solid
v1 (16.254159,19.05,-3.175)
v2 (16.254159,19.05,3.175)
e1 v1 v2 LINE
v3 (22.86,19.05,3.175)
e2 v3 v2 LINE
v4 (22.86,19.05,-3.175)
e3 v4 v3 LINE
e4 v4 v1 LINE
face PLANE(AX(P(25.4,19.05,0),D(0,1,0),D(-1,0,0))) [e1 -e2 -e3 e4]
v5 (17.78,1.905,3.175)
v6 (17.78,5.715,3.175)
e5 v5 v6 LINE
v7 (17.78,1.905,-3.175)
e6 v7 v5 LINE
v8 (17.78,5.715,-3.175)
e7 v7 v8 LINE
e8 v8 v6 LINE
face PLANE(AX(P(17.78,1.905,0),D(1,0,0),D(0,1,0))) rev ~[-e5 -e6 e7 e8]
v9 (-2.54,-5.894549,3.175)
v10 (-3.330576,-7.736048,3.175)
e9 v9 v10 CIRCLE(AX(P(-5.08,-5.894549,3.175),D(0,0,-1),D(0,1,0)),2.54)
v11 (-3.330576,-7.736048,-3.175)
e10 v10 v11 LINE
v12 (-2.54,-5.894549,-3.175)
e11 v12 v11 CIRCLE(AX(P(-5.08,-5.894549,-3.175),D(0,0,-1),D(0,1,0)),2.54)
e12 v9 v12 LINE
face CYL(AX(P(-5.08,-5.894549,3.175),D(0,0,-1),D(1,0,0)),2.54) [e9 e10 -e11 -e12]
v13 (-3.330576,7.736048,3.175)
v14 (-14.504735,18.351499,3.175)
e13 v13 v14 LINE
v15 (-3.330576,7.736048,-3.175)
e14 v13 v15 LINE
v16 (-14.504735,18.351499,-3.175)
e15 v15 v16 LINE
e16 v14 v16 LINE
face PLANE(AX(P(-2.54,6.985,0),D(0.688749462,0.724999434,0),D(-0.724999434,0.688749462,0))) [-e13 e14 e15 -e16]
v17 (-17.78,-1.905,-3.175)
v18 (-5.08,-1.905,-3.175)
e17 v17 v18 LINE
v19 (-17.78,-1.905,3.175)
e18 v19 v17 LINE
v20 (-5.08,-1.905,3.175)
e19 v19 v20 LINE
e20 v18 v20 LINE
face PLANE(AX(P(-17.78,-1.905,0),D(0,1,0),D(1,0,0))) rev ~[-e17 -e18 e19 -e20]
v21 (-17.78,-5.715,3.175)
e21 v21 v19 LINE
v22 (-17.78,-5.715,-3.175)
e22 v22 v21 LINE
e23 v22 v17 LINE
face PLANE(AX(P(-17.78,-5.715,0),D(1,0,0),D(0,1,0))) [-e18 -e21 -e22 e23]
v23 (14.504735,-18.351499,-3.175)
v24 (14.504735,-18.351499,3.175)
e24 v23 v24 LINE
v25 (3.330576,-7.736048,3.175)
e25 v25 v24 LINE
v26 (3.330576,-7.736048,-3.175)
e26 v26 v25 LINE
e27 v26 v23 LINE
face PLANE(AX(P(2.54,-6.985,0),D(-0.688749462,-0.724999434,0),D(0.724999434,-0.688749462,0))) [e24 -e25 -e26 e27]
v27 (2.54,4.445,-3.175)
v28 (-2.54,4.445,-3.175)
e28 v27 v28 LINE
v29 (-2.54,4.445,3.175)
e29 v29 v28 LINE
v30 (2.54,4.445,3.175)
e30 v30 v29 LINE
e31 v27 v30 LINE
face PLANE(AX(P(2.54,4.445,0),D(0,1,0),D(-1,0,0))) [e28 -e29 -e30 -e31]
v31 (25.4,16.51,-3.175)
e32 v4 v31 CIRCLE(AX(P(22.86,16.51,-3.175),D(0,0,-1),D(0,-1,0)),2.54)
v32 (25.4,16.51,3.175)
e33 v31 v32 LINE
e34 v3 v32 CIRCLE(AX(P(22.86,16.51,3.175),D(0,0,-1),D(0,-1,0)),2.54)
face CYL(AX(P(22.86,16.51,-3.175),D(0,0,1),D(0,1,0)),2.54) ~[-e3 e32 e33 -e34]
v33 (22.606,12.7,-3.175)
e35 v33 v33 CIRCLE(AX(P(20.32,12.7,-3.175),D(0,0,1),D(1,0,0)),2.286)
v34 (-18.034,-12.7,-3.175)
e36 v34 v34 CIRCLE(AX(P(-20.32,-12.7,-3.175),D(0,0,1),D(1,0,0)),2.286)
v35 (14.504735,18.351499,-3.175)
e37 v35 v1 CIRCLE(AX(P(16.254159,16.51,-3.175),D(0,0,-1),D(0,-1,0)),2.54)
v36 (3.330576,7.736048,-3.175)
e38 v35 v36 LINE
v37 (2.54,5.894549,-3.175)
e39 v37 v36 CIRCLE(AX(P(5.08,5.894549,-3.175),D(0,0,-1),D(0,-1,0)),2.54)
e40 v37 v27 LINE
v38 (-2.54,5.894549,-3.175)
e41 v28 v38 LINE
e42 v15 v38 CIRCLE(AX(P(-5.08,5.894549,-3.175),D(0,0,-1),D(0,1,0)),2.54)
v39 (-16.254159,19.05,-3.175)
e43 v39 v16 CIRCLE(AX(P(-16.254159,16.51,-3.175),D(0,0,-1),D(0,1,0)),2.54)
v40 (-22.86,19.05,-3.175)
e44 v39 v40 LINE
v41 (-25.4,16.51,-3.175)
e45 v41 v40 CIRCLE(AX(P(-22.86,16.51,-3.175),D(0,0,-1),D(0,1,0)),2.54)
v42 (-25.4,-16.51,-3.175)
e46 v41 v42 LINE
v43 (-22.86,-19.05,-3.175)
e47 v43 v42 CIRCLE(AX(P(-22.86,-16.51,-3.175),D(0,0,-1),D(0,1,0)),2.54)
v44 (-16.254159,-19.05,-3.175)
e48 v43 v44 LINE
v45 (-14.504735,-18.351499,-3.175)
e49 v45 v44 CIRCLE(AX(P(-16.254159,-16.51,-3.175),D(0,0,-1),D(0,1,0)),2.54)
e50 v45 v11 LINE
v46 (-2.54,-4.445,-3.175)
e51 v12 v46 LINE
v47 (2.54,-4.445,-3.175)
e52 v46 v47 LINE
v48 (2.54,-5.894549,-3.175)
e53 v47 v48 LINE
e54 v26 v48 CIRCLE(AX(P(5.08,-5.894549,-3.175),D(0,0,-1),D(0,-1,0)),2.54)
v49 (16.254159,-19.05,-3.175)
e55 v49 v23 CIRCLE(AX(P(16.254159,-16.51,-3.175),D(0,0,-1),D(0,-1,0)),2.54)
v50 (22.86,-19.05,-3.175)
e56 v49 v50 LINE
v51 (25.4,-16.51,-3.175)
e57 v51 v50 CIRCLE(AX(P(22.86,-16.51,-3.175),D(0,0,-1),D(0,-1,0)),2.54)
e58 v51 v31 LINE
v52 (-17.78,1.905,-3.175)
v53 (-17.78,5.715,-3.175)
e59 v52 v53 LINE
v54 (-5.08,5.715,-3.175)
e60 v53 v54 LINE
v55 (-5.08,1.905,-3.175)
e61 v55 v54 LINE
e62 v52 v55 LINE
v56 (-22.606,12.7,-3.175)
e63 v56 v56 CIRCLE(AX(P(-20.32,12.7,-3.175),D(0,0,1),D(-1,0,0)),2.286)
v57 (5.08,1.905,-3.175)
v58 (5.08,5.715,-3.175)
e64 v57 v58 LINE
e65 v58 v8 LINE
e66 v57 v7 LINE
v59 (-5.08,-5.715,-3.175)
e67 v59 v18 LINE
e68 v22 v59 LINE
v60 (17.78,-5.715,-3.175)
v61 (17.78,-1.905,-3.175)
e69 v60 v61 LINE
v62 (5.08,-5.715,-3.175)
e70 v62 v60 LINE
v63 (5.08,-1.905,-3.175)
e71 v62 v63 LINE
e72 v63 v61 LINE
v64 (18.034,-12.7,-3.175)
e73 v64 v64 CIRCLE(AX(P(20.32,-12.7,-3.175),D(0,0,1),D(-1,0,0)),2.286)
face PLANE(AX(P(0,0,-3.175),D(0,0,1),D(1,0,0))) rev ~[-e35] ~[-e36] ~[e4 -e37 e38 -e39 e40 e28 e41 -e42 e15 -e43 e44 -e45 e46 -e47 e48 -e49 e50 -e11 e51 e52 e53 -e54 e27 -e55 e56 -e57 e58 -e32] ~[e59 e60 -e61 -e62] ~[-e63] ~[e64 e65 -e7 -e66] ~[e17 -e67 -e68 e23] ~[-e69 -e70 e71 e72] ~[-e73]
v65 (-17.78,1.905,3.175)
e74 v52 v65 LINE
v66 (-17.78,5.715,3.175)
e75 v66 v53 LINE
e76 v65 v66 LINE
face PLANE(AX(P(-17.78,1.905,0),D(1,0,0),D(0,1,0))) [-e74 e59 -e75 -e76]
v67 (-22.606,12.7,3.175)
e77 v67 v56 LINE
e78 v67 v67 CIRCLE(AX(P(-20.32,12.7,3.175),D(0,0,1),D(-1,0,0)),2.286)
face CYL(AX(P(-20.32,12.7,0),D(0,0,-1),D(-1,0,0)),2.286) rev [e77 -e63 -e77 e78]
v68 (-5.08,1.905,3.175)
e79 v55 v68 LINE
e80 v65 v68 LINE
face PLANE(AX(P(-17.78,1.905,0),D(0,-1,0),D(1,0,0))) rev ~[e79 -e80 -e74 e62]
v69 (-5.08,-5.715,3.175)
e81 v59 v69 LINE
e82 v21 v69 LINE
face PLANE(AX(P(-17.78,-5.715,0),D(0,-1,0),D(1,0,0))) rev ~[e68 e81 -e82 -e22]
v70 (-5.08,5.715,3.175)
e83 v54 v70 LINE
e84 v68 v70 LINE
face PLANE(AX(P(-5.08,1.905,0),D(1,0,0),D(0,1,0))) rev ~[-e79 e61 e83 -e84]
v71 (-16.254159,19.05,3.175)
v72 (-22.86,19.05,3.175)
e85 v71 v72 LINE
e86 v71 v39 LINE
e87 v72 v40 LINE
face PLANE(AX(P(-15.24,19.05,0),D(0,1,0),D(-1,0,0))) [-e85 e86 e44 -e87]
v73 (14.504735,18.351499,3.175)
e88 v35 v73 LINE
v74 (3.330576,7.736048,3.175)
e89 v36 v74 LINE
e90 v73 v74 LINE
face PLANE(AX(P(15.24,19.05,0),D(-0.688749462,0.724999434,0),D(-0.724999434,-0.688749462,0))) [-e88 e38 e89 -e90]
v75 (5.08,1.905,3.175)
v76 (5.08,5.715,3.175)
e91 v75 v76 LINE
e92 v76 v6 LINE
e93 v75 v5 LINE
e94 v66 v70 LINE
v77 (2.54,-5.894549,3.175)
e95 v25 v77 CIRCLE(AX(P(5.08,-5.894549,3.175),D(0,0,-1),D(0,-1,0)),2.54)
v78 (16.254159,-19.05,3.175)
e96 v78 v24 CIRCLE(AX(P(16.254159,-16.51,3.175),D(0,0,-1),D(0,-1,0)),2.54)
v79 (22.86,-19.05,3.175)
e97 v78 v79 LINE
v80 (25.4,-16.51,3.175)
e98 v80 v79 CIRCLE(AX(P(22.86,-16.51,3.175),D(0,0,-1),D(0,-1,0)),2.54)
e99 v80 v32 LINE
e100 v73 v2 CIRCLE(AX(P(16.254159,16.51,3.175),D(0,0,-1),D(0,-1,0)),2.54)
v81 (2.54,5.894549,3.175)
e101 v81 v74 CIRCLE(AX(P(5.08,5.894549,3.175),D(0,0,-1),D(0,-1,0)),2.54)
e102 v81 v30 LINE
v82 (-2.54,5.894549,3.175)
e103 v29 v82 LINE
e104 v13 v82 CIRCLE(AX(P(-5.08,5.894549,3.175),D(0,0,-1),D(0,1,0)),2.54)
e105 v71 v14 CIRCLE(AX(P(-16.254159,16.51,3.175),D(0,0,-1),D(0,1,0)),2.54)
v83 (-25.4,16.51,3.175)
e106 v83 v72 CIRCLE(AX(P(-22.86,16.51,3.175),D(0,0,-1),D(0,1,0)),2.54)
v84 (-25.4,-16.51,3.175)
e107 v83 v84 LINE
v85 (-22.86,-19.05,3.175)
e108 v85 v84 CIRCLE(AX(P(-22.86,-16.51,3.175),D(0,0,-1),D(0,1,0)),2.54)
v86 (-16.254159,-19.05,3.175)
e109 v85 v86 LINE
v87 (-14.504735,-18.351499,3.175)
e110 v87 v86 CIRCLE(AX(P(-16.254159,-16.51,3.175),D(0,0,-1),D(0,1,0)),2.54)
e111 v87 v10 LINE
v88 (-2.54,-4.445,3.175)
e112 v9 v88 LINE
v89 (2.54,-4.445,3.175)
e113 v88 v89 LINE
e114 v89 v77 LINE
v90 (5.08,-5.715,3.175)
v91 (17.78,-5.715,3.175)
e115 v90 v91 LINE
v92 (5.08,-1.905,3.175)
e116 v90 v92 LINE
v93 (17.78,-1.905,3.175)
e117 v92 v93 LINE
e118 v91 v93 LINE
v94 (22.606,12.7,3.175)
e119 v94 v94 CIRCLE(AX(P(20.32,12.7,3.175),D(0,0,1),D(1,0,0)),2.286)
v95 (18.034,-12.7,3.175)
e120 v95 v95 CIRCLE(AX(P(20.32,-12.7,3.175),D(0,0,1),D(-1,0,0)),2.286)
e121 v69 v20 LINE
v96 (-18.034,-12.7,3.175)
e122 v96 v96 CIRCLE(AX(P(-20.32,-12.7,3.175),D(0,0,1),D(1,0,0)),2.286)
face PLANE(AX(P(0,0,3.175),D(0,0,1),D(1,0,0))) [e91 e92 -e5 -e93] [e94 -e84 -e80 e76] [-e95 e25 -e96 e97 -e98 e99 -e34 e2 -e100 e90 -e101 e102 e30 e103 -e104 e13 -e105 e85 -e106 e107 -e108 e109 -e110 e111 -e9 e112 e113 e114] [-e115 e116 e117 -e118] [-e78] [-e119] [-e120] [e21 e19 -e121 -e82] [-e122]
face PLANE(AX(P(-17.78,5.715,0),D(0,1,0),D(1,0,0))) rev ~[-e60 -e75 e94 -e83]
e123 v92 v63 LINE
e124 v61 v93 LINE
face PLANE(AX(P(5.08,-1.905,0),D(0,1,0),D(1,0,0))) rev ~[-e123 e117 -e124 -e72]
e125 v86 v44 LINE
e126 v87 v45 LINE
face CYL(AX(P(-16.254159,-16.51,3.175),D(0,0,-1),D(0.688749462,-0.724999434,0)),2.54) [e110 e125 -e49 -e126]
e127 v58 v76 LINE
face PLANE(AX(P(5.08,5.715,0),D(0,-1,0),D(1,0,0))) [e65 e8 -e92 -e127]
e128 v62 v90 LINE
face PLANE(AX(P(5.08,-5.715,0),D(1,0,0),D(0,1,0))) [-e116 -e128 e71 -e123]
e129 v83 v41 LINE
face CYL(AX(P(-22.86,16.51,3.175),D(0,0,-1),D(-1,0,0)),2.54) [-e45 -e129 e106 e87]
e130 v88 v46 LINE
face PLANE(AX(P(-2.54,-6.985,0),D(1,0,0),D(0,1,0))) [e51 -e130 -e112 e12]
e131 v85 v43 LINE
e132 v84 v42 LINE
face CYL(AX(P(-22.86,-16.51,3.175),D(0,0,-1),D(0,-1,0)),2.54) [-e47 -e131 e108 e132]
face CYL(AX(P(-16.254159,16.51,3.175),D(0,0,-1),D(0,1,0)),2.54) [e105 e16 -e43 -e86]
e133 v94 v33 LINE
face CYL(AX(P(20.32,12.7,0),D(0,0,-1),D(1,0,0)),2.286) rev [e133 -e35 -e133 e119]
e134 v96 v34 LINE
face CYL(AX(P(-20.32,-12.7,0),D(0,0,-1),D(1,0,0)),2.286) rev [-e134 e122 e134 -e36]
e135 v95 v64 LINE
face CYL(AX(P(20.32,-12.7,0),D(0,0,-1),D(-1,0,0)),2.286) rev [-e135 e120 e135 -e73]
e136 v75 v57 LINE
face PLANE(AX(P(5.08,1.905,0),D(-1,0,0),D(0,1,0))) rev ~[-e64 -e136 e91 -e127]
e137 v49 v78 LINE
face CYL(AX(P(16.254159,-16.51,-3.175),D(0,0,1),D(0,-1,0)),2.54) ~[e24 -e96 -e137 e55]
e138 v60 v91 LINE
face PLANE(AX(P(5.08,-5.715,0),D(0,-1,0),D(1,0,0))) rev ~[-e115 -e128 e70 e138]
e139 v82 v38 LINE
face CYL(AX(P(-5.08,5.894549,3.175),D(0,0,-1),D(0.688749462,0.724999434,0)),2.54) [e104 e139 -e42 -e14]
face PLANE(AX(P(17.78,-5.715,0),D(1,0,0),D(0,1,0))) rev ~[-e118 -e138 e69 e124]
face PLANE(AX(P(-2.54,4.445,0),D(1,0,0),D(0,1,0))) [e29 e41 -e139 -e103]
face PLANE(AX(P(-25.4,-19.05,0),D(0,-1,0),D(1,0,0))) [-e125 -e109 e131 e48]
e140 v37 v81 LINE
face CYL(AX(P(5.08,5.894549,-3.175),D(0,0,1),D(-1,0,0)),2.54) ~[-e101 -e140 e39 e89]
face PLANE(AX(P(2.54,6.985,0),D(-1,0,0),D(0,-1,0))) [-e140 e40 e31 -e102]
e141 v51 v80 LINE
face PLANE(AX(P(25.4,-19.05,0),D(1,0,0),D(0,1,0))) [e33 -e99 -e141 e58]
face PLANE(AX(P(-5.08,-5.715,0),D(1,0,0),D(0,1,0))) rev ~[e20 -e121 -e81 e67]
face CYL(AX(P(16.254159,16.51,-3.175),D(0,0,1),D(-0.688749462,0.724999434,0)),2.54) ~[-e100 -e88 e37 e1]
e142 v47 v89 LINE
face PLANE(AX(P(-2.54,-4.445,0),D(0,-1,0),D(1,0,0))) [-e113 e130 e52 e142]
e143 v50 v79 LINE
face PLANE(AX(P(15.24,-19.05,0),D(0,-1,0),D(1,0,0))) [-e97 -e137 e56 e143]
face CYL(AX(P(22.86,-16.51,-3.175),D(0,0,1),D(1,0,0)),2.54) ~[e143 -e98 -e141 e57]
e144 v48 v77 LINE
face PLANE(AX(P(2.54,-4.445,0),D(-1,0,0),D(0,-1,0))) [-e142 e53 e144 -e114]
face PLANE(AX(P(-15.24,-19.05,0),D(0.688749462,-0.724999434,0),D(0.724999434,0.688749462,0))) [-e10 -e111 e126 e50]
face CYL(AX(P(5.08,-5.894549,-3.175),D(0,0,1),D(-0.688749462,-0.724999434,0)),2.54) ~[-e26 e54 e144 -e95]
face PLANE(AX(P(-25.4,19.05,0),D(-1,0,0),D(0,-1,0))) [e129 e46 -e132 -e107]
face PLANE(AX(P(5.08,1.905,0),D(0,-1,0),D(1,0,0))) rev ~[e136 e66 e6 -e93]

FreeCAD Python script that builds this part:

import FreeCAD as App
import Part
import Sketcher
from FreeCAD import Vector
Q = App.Units.Quantity


def edges_at(feature, points):
    """Names of the edges that pass closest to the given points."""
    edges = feature.Shape.Edges
    near = lambda p: min(range(len(edges)), key=lambda i: edges[i].distToShape(Part.Vertex(*p))[0])
    return sorted({f"Edge{near(p) + 1}" for p in points})


def add_polygon(sketch, points):
    """Adds a closed chain of lines whose ends are joined by coincident constraints."""
    first, n = sketch.GeometryCount, len(points)
    for a, b in zip(points, points[1:] + points[:1]):
        sketch.addGeometry(Part.LineSegment(App.Vector(*a, 0), App.Vector(*b, 0)), False)
    for i in range(n):
        sketch.addConstraint(Sketcher.Constraint("Coincident", first + i, 2, first + (i + 1) % n, 1))

doc = App.newDocument("Part")
body = doc.addObject("PartDesign::Body", "Body")

# Sketch on XY plane
sketch1 = body.newObject("Sketcher::SketchObject", "Sketch")
sketch1.AttachmentSupport = (doc.getObject("XY_Plane"), [""])
sketch1.MapMode = "FlatFace"
add_polygon(sketch1, [(-2.5, -4.4), (2.5, -4.4), (2.5, -7), (15.2, -19.1), (25.4, -19.1), (25.4, 19.1), (15.2, 19.1), (2.5, 7), (2.5, 4.4), (-2.5, 4.4), (-2.5, 7), (-15.2, 19.1), (-25.4, 19.1), (-25.4, -19.1), (-15.2, -19.1), (-2.5, -7)])  # lines 0-15
sketch1.addGeometry(Part.Circle(Vector(-20.3, -12.7, 0), Vector(0, 0, 1), 2.3), False)  # 16
add_polygon(sketch1, [(-5.1, -5.7), (-17.8, -5.7), (-17.8, -1.9), (-5.1, -1.9)])  # lines 17-20
sketch1.addGeometry(Part.Circle(Vector(20.3, -12.7, 0), Vector(0, 0, 1), 2.3), False)  # 21
add_polygon(sketch1, [(17.8, -5.7), (5.1, -5.7), (5.1, -1.9), (17.8, -1.9)])  # lines 22-25
add_polygon(sketch1, [(-5.1, 1.9), (-17.8, 1.9), (-17.8, 5.7), (-5.1, 5.7)])  # lines 26-29
sketch1.addGeometry(Part.Circle(Vector(-20.3, 12.7, 0), Vector(0, 0, 1), 2.3), False)  # 30
add_polygon(sketch1, [(17.8, 1.9), (5.1, 1.9), (5.1, 5.7), (17.8, 5.7)])  # lines 31-34
sketch1.addGeometry(Part.Circle(Vector(20.3, 12.7, 0), Vector(0, 0, 1), 2.3), False)  # 35
sketch1.addConstraint(Sketcher.Constraint("Horizontal", 0))
sketch1.addConstraint(Sketcher.Constraint("Vertical", 1))
sketch1.addConstraint(Sketcher.Constraint("Horizontal", 3))
sketch1.addConstraint(Sketcher.Constraint("Vertical", 4))
sketch1.addConstraint(Sketcher.Constraint("Horizontal", 5))
sketch1.addConstraint(Sketcher.Constraint("Vertical", 7))
sketch1.addConstraint(Sketcher.Constraint("Horizontal", 8))
sketch1.addConstraint(Sketcher.Constraint("Vertical", 9))
sketch1.addConstraint(Sketcher.Constraint("Horizontal", 11))
sketch1.addConstraint(Sketcher.Constraint("Vertical", 12))
sketch1.addConstraint(Sketcher.Constraint("Horizontal", 13))
sketch1.addConstraint(Sketcher.Constraint("Vertical", 15))
sketch1.addConstraint(Sketcher.Constraint("Horizontal", 17))
sketch1.addConstraint(Sketcher.Constraint("Vertical", 18))
sketch1.addConstraint(Sketcher.Constraint("Horizontal", 19))
sketch1.addConstraint(Sketcher.Constraint("Vertical", 20))
sketch1.addConstraint(Sketcher.Constraint("Horizontal", 22))
sketch1.addConstraint(Sketcher.Constraint("Vertical", 23))
sketch1.addConstraint(Sketcher.Constraint("Horizontal", 24))
sketch1.addConstraint(Sketcher.Constraint("Vertical", 25))
sketch1.addConstraint(Sketcher.Constraint("Horizontal", 26))
sketch1.addConstraint(Sketcher.Constraint("Vertical", 27))
sketch1.addConstraint(Sketcher.Constraint("Horizontal", 28))
sketch1.addConstraint(Sketcher.Constraint("Vertical", 29))
sketch1.addConstraint(Sketcher.Constraint("Horizontal", 31))
sketch1.addConstraint(Sketcher.Constraint("Vertical", 32))
sketch1.addConstraint(Sketcher.Constraint("Horizontal", 33))
sketch1.addConstraint(Sketcher.Constraint("Vertical", 34))
sketch1.addConstraint(Sketcher.Constraint("Equal", 16, 21))
sketch1.addConstraint(Sketcher.Constraint("Equal", 21, 30))
sketch1.addConstraint(Sketcher.Constraint("Equal", 30, 35))
sketch1.addConstraint(Sketcher.Constraint("Symmetric", 21, 3, 30, 3, -1, 1))
sketch1.addConstraint(Sketcher.Constraint("Symmetric", 16, 3, 35, 3, -1, 1))
sketch1.addConstraint(Sketcher.Constraint("Symmetric", 0, 2, 8, 2, -1, 1))
sketch1.addConstraint(Sketcher.Constraint("Symmetric", 2, 2, 10, 2, -1, 1))
sketch1.addConstraint(Sketcher.Constraint("Symmetric", 4, 2, 12, 2, -1, 1))
sketch1.addConstraint(Sketcher.Constraint("Symmetric", 6, 2, 14, 2, -1, 1))
sketch1.addConstraint(Sketcher.Constraint("Symmetric", 24, 2, 26, 2, -1, 1))
sketch1.addConstraint(Sketcher.Constraint("Symmetric", 22, 2, 28, 2, -1, 1))
sketch1.addConstraint(Sketcher.Constraint("Symmetric", 19, 2, 31, 2, -1, 1))
sketch1.addConstraint(Sketcher.Constraint("Symmetric", 17, 2, 33, 2, -1, 1))
sketch1.addConstraint(Sketcher.Constraint("Symmetric", 16, 3, 21, 3, -2))
sketch1.addConstraint(Sketcher.Constraint("Symmetric", 6, 2, 9, 2, -2))
sketch1.addConstraint(Sketcher.Constraint("Symmetric", 5, 2, 10, 2, -2))
sketch1.addConstraint(Sketcher.Constraint("Symmetric", 20, 2, 22, 2, -2))
sketch1.addConstraint(Sketcher.Constraint("Symmetric", 18, 2, 24, 2, -2))
sketch1.addConstraint(Sketcher.Constraint("Parallel", 2, 10))
sketch1.addConstraint(Sketcher.Constraint("Parallel", 6, 14))
sketch1.addConstraint(Sketcher.Constraint("Diameter", 16, Q("0.18 in")))
sketch1.addConstraint(Sketcher.Constraint("DistanceX", 0, 1, 0, 2, Q("0.2 in")))
sketch1.addConstraint(Sketcher.Constraint("DistanceX", 3, 1, 3, 2, Q("0.4 in")))
sketch1.addConstraint(Sketcher.Constraint("DistanceX", 17, 2, 17, 1, Q("0.5 in")))
sketch1.addConstraint(Sketcher.Constraint("DistanceY", 1, 2, 1, 1, Q("0.1 in")))
sketch1.addConstraint(Sketcher.Constraint("DistanceY", 4, 1, 4, 2, Q("1.5 in")))
sketch1.addConstraint(Sketcher.Constraint("DistanceX", -1, 1, 3, 2, Q("1 in")))
sketch1.addConstraint(Sketcher.Constraint("DistanceY", 16, 3, 30, 3, Q("1 in")))
sketch1.addConstraint(Sketcher.Constraint("DistanceY", 18, 1, 18, 2, Q("0.15 in")))
sketch1.addConstraint(Sketcher.Constraint("DistanceX", 16, 3, -1, 1, Q("0.8 in")))
sketch1.addConstraint(Sketcher.Constraint("DistanceX", 17, 2, -1, 1, Q("0.7 in")))
sketch1.addConstraint(Sketcher.Constraint("DistanceY", 15, 2, 18, 2, Q("0.1 in")))
sketch1.addConstraint(Sketcher.Constraint("DistanceY", 17, 2, 26, 2, Q("0.3 in")))
pad1 = body.newObject("PartDesign::Pad", "Pad")
pad1.Profile = sketch1
pad1.Length = Q("0.25 in")
pad1.Midplane = True
doc.recompute()

fillet = body.newObject("PartDesign::Fillet", "Fillet")
fillet.Base = (pad1, edges_at(pad1, [
    (-2.54, -6.985, 0),
    (-15.24, -19.05, 0),
    (-25.4, -19.05, 0),
    (-25.4, 19.05, 0),
    (-15.24, 19.05, 0),
    (-2.54, 6.985, 0),
    (2.54, 6.985, 0),
    (15.24, 19.05, 0),
    (25.4, 19.05, 0),
    (25.4, -19.05, 0),
    (15.24, -19.05, 0),
    (2.54, -6.985, 0),
]))
fillet.Radius = Q("0.1 in")

doc.recompute()
